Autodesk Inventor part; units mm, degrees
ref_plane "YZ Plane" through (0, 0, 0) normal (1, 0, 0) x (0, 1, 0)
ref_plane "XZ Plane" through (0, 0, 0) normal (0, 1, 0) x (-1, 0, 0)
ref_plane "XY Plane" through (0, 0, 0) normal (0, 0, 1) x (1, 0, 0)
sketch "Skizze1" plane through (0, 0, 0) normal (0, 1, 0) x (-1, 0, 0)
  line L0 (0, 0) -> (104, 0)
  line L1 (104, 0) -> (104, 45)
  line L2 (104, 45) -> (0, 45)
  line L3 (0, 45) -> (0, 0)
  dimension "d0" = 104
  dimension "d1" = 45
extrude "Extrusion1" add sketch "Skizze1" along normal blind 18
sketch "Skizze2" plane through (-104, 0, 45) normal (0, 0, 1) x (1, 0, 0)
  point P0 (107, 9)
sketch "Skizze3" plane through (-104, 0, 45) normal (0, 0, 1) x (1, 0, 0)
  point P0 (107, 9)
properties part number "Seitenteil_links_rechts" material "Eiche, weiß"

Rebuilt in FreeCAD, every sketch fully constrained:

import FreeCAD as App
import Part
import Sketcher
from FreeCAD import Vector
Q = App.Units.Quantity


def add_polygon(sketch, points):
    """Adds a closed chain of lines whose ends are joined by coincident constraints."""
    first, n = sketch.GeometryCount, len(points)
    for a, b in zip(points, points[1:] + points[:1]):
        sketch.addGeometry(Part.LineSegment(App.Vector(*a, 0), App.Vector(*b, 0)), False)
    for i in range(n):
        sketch.addConstraint(Sketcher.Constraint("Coincident", first + i, 2, first + (i + 1) % n, 1))

doc = App.newDocument("Part")
body = doc.addObject("PartDesign::Body", "Body")

sketch1 = body.newObject("Sketcher::SketchObject", "Sketch")
sketch1.AttachmentSupport = (doc.getObject("XZ_Plane"), [""])
sketch1.MapMode = "FlatFace"
add_polygon(sketch1, [(0, 45), (0, 0), (-104, 0), (-104, 45)])
sketch1.addConstraint(Sketcher.Constraint("Vertical", 0))
sketch1.addConstraint(Sketcher.Constraint("Horizontal", 1))
sketch1.addConstraint(Sketcher.Constraint("Vertical", 2))
sketch1.addConstraint(Sketcher.Constraint("Horizontal", 3))
sketch1.addConstraint(Sketcher.Constraint("Coincident", 0, 2, -1, 1))
sketch1.addConstraint(Sketcher.Constraint("DistanceX", 1, 2, 1, 1, Q("104 mm")))
sketch1.addConstraint(Sketcher.Constraint("DistanceY", 0, 2, 0, 1, Q("45 mm")))
pad1 = body.newObject("PartDesign::Pad", "Pad")
pad1.Profile = sketch1
pad1.Length = 18
pad1.Reversed = True

doc.recompute()
